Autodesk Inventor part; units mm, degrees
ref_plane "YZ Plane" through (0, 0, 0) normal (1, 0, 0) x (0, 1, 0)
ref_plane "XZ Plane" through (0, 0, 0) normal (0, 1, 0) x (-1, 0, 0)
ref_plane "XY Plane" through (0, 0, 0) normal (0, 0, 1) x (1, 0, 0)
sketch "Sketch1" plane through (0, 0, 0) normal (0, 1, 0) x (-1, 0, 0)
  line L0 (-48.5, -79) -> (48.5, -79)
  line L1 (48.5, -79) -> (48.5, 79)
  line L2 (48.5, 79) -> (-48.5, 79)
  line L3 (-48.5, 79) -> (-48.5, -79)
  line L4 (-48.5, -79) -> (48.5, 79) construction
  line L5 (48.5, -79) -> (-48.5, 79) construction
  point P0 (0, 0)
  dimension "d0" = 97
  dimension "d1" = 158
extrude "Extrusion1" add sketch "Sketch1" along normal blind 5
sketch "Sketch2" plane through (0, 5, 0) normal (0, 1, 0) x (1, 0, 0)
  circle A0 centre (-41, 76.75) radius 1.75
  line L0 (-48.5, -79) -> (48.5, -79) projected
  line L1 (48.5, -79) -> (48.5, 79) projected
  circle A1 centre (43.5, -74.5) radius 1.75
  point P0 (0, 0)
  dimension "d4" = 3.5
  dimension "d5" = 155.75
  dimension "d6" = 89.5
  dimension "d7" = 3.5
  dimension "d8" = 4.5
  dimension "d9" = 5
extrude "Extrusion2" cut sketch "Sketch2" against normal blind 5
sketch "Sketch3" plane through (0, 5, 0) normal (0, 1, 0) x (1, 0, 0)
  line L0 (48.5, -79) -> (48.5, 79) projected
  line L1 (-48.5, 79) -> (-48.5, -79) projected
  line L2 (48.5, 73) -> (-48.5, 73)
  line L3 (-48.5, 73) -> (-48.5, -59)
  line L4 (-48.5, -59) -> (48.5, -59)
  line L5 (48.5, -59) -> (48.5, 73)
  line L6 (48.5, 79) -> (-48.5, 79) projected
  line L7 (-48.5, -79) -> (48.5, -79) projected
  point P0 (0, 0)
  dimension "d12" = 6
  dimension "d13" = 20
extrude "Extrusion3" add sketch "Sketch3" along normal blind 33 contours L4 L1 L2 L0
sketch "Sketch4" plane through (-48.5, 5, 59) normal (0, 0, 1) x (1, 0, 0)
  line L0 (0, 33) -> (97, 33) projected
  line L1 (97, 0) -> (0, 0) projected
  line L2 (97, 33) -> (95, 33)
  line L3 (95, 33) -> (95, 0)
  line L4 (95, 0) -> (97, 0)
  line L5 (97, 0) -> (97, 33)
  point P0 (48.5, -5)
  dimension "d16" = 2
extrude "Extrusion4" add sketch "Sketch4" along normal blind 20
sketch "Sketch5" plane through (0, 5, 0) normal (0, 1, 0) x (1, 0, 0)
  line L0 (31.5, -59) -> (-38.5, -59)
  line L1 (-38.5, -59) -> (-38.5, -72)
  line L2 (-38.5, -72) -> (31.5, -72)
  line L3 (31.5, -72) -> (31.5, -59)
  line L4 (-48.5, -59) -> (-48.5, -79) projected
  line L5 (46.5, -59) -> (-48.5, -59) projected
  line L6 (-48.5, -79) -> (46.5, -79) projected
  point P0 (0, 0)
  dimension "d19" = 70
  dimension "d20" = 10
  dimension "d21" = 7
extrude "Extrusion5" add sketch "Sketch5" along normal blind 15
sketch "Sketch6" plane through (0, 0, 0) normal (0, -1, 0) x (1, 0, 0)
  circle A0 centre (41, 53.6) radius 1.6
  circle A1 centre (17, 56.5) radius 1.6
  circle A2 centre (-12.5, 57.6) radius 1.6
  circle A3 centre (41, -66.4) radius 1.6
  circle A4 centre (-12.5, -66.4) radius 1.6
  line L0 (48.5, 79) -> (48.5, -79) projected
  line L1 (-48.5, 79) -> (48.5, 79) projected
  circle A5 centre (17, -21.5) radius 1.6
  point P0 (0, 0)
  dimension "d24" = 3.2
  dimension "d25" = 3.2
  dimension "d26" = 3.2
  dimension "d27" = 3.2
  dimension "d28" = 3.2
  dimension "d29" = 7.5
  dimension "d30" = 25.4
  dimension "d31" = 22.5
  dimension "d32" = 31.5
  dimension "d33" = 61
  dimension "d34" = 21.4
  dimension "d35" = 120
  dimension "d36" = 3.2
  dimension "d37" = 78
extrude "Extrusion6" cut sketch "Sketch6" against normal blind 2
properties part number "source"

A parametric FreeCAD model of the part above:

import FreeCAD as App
import Part
import Sketcher
from FreeCAD import Vector


def add_polygon(sketch, points):
    """Adds a closed chain of lines whose ends are joined by coincident constraints."""
    first, n = sketch.GeometryCount, len(points)
    for a, b in zip(points, points[1:] + points[:1]):
        sketch.addGeometry(Part.LineSegment(App.Vector(*a, 0), App.Vector(*b, 0)), False)
    for i in range(n):
        sketch.addConstraint(Sketcher.Constraint("Coincident", first + i, 2, first + (i + 1) % n, 1))

doc = App.newDocument("Part")
body = doc.addObject("PartDesign::Body", "Body")

sketch1 = body.newObject("Sketcher::SketchObject", "Sketch")
sketch1.AttachmentSupport = (doc.getObject("XZ_Plane"), [""])
sketch1.MapMode = "FlatFace"
add_polygon(sketch1, [(48.5, 79), (48.5, -79), (-48.5, -79), (-48.5, 79)])
sketch1.addConstraint(Sketcher.Constraint("Vertical", 0))
sketch1.addConstraint(Sketcher.Constraint("Horizontal", 1))
sketch1.addConstraint(Sketcher.Constraint("Vertical", 2))
sketch1.addConstraint(Sketcher.Constraint("Horizontal", 3))
sketch1.addConstraint(Sketcher.Constraint("Symmetric", 0, 2, 2, 2, -1, 1))
sketch1.addConstraint(Sketcher.Constraint("DistanceX", 1, 2, 1, 1, 97.0))
sketch1.addConstraint(Sketcher.Constraint("DistanceY", 0, 2, 0, 1, 158.0))
pad1 = body.newObject("PartDesign::Pad", "Pad")
pad1.Profile = sketch1
pad1.Length = 5
pad1.Reversed = True

sketch2 = body.newObject("Sketcher::SketchObject", "Sketch001")
sketch2.AttachmentSupport = (doc.getObject("XZ_Plane"), [""])
sketch2.MapMode = "FlatFace"
sketch2.AttachmentOffset = App.Placement(Vector(0, 0, -5), App.Rotation())
sketch2.addGeometry(Part.Circle(Vector(-41, -76.75, 0), Vector(0, 0, 1), 1.75), False)
sketch2.addGeometry(Part.Circle(Vector(43.5, 74.5, 0), Vector(0, 0, 1), 1.75), False)
sketch2.addConstraint(Sketcher.Constraint("Equal", 0, 1))
sketch2.addConstraint(Sketcher.Constraint("Diameter", 0, 3.5))
sketch2.addConstraint(Sketcher.Constraint("DistanceX", 0, 3, -1, 1, 41.0))
sketch2.addConstraint(Sketcher.Constraint("DistanceX", -1, 1, 1, 3, 43.5))
sketch2.addConstraint(Sketcher.Constraint("DistanceY", -1, 1, 1, 3, 74.5))
sketch2.addConstraint(Sketcher.Constraint("DistanceY", 0, 3, -1, 1, 76.75))
pocket1 = body.newObject("PartDesign::Pocket", "Pocket")
pocket1.Profile = sketch2
pocket1.Length = 5
pocket1.Reversed = True

sketch3 = body.newObject("Sketcher::SketchObject", "Sketch002")
sketch3.AttachmentSupport = (doc.getObject("XZ_Plane"), [""])
sketch3.MapMode = "FlatFace"
sketch3.AttachmentOffset = App.Placement(Vector(0, 0, -5), App.Rotation())
add_polygon(sketch3, [(-48.5, 59), (48.5, 59), (48.5, -73), (-48.5, -73)])
sketch3.addConstraint(Sketcher.Constraint("Horizontal", 0))
sketch3.addConstraint(Sketcher.Constraint("Vertical", 1))
sketch3.addConstraint(Sketcher.Constraint("Horizontal", 2))
sketch3.addConstraint(Sketcher.Constraint("Vertical", 3))
sketch3.addConstraint(Sketcher.Constraint("DistanceX", 0, 1, 0, 2, 97.0))
sketch3.addConstraint(Sketcher.Constraint("DistanceY", 1, 2, 1, 1, 132.0))
sketch3.addConstraint(Sketcher.Constraint("DistanceY", -1, 1, 0, 2, 59.0))
sketch3.addConstraint(Sketcher.Constraint("DistanceX", -1, 1, 0, 2, 48.5))
pad2 = body.newObject("PartDesign::Pad", "Pad001")
pad2.Profile = sketch3
pad2.Length = 33
pad2.Reversed = True

sketch4 = body.newObject("Sketcher::SketchObject", "Sketch003")
sketch4.AttachmentSupport = (doc.getObject("XY_Plane"), [""])
sketch4.MapMode = "FlatFace"
sketch4.AttachmentOffset = App.Placement(Vector(0, 0, 59), App.Rotation())
add_polygon(sketch4, [(48.5, 38), (46.5, 38), (46.5, 5), (48.5, 5)])
sketch4.addConstraint(Sketcher.Constraint("Horizontal", 0))
sketch4.addConstraint(Sketcher.Constraint("Vertical", 1))
sketch4.addConstraint(Sketcher.Constraint("Horizontal", 2))
sketch4.addConstraint(Sketcher.Constraint("Vertical", 3))
sketch4.addConstraint(Sketcher.Constraint("DistanceX", 0, 2, 0, 1, 2.0))
sketch4.addConstraint(Sketcher.Constraint("DistanceY", 1, 2, 1, 1, 33.0))
sketch4.addConstraint(Sketcher.Constraint("DistanceY", -1, 1, 0, 2, 38.0))
sketch4.addConstraint(Sketcher.Constraint("DistanceX", -1, 1, 0, 2, 46.5))
pad3 = body.newObject("PartDesign::Pad", "Pad002")
pad3.Profile = sketch4
pad3.Length = 20

sketch5 = body.newObject("Sketcher::SketchObject", "Sketch004")
sketch5.AttachmentSupport = (doc.getObject("XZ_Plane"), [""])
sketch5.MapMode = "FlatFace"
sketch5.AttachmentOffset = App.Placement(Vector(0, 0, -5), App.Rotation())
add_polygon(sketch5, [(31.5, 72), (31.5, 59), (-38.5, 59), (-38.5, 72)])
sketch5.addConstraint(Sketcher.Constraint("Vertical", 0))
sketch5.addConstraint(Sketcher.Constraint("Horizontal", 1))
sketch5.addConstraint(Sketcher.Constraint("Vertical", 2))
sketch5.addConstraint(Sketcher.Constraint("Horizontal", 3))
sketch5.addConstraint(Sketcher.Constraint("DistanceX", 1, 2, 1, 1, 70.0))
sketch5.addConstraint(Sketcher.Constraint("DistanceY", 0, 2, 0, 1, 13.0))
sketch5.addConstraint(Sketcher.Constraint("DistanceY", -1, 1, 0, 2, 59.0))
sketch5.addConstraint(Sketcher.Constraint("DistanceX", -1, 1, 0, 2, 31.5))
pad4 = body.newObject("PartDesign::Pad", "Pad003")
pad4.Profile = sketch5
pad4.Length = 15
pad4.Reversed = True

sketch6 = body.newObject("Sketcher::SketchObject", "Sketch005")
sketch6.AttachmentSupport = (doc.getObject("XZ_Plane"), [""])
sketch6.MapMode = "FlatFace"
sketch6.addGeometry(Part.Circle(Vector(41, 53.6, 0), Vector(0, 0, 1), 1.6), False)
sketch6.addGeometry(Part.Circle(Vector(17, 56.5, 0), Vector(0, 0, 1), 1.6), False)
sketch6.addGeometry(Part.Circle(Vector(-12.5, 57.6, 0), Vector(0, 0, 1), 1.6), False)
sketch6.addGeometry(Part.Circle(Vector(41, -66.4, 0), Vector(0, 0, 1), 1.6), False)
sketch6.addGeometry(Part.Circle(Vector(-12.5, -66.4, 0), Vector(0, 0, 1), 1.6), False)
sketch6.addGeometry(Part.Circle(Vector(17, -21.5, 0), Vector(0, 0, 1), 1.6), False)
sketch6.addConstraint(Sketcher.Constraint("Equal", 0, 1))
sketch6.addConstraint(Sketcher.Constraint("Equal", 1, 2))
sketch6.addConstraint(Sketcher.Constraint("Equal", 2, 3))
sketch6.addConstraint(Sketcher.Constraint("Equal", 3, 4))
sketch6.addConstraint(Sketcher.Constraint("Equal", 4, 5))
sketch6.addConstraint(Sketcher.Constraint("Horizontal", 3, 3, 4, 3))
sketch6.addConstraint(Sketcher.Constraint("Vertical", 0, 3, 3, 3))
sketch6.addConstraint(Sketcher.Constraint("Vertical", 2, 3, 4, 3))
sketch6.addConstraint(Sketcher.Constraint("Vertical", 1, 3, 5, 3))
sketch6.addConstraint(Sketcher.Constraint("Diameter", 0, 3.2))
sketch6.addConstraint(Sketcher.Constraint("DistanceY", 3, 3, 0, 3, 120.0))
sketch6.addConstraint(Sketcher.Constraint("DistanceY", 5, 3, 1, 3, 78.0))
sketch6.addConstraint(Sketcher.Constraint("DistanceX", -1, 1, 0, 3, 41.0))
sketch6.addConstraint(Sketcher.Constraint("DistanceX", -1, 1, 1, 3, 17.0))
sketch6.addConstraint(Sketcher.Constraint("DistanceY", 0, 3, 2, 3, 4.0))
sketch6.addConstraint(Sketcher.Constraint("DistanceY", -1, 1, 0, 3, 53.6))
sketch6.addConstraint(Sketcher.Constraint("DistanceY", -1, 1, 1, 3, 56.5))
sketch6.addConstraint(Sketcher.Constraint("DistanceX", 2, 3, -1, 1, 12.5))
pocket2 = body.newObject("PartDesign::Pocket", "Pocket001")
pocket2.Profile = sketch6
pocket2.Length = 2

doc.recompute()
